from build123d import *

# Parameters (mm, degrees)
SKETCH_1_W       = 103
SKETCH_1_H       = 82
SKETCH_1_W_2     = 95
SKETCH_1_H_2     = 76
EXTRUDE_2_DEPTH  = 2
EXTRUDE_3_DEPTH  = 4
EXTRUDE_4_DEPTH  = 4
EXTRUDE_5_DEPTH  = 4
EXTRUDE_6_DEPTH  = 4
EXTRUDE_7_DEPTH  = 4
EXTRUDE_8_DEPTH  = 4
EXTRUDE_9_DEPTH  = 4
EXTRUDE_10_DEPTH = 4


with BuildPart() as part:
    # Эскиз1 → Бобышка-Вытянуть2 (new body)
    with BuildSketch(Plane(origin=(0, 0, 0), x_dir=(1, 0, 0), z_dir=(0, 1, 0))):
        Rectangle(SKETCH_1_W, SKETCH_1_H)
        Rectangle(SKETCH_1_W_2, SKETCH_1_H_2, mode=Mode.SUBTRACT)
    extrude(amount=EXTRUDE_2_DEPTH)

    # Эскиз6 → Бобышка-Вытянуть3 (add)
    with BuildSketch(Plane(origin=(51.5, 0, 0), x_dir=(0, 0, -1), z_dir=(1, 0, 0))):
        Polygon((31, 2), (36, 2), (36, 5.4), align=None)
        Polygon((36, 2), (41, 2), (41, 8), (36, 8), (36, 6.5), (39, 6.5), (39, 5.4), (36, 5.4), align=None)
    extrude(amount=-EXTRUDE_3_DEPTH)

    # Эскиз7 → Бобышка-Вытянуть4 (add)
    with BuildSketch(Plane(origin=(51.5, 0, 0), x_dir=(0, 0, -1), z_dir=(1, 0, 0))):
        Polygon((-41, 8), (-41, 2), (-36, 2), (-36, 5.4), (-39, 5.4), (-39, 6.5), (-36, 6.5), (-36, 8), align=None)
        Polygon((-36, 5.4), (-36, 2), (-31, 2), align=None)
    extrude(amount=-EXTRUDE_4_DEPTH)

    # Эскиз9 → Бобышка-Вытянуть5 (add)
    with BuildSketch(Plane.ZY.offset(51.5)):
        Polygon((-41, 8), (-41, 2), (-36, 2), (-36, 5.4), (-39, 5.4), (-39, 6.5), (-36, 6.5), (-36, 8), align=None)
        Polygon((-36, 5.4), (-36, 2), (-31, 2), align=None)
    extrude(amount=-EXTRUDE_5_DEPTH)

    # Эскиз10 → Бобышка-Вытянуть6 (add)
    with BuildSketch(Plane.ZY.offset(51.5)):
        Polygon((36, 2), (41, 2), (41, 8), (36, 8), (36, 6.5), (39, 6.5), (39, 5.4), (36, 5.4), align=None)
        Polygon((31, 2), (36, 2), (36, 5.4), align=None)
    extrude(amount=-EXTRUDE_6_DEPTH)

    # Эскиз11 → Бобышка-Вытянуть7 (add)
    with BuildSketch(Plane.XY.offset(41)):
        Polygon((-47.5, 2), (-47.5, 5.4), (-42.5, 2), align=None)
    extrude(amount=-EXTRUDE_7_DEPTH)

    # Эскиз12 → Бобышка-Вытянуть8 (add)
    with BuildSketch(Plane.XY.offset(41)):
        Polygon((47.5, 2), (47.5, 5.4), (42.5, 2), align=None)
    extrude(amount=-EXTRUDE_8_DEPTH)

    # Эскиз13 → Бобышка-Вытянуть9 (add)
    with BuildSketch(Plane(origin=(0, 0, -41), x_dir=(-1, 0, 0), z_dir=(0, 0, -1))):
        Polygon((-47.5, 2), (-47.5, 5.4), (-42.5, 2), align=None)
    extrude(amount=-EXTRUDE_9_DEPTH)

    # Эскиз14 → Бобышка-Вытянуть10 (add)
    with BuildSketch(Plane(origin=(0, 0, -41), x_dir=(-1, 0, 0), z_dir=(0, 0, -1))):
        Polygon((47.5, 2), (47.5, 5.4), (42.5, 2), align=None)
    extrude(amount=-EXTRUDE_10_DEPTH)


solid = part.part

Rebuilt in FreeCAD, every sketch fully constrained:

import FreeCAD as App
import Part
import Sketcher
Q = App.Units.Quantity

doc = App.newDocument("Part")
body = doc.addObject("PartDesign::Body", "Body")

# Sketch on XZ plane
sketch1 = doc.addObject("Sketcher::SketchObject", "Sketch")
body.addObject(sketch1)
sketch1.AttachmentSupport = (doc.XZ_Plane, [""])
sketch1.MapMode = "FlatFace"
sketch1.addGeometry(Part.LineSegment(App.Vector(-52, -41, 0), App.Vector(-52, 41, 0)), False)
sketch1.addGeometry(Part.LineSegment(App.Vector(-52, 41, 0), App.Vector(52, 41, 0)), False)
sketch1.addGeometry(Part.LineSegment(App.Vector(52, 41, 0), App.Vector(52, -41, 0)), False)
sketch1.addGeometry(Part.LineSegment(App.Vector(52, -41, 0), App.Vector(-52, -41, 0)), False)
sketch1.addGeometry(Part.LineSegment(App.Vector(48, 38, 0), App.Vector(-48, 38, 0)), False)
sketch1.addGeometry(Part.LineSegment(App.Vector(-48, 38, 0), App.Vector(-48, -38, 0)), False)
sketch1.addGeometry(Part.LineSegment(App.Vector(-48, -38, 0), App.Vector(48, -38, 0)), False)
sketch1.addGeometry(Part.LineSegment(App.Vector(48, -38, 0), App.Vector(48, 38, 0)), False)
sketch1.addConstraint(Sketcher.Constraint("Coincident", 0, 2, 1, 1))
sketch1.addConstraint(Sketcher.Constraint("Coincident", 1, 2, 2, 1))
sketch1.addConstraint(Sketcher.Constraint("Coincident", 2, 2, 3, 1))
sketch1.addConstraint(Sketcher.Constraint("Coincident", 3, 2, 0, 1))
sketch1.addConstraint(Sketcher.Constraint("Coincident", 4, 2, 5, 1))
sketch1.addConstraint(Sketcher.Constraint("Coincident", 5, 2, 6, 1))
sketch1.addConstraint(Sketcher.Constraint("Coincident", 6, 2, 7, 1))
sketch1.addConstraint(Sketcher.Constraint("Coincident", 7, 2, 4, 1))
sketch1.addConstraint(Sketcher.Constraint("Vertical", 0))
sketch1.addConstraint(Sketcher.Constraint("Horizontal", 1))
sketch1.addConstraint(Sketcher.Constraint("Vertical", 2))
sketch1.addConstraint(Sketcher.Constraint("Horizontal", 3))
sketch1.addConstraint(Sketcher.Constraint("Horizontal", 4))
sketch1.addConstraint(Sketcher.Constraint("Vertical", 5))
sketch1.addConstraint(Sketcher.Constraint("Horizontal", 6))
sketch1.addConstraint(Sketcher.Constraint("Vertical", 7))
sketch1.addConstraint(Sketcher.Constraint("Symmetric", 0, 2, 2, 2, -1, 1))
sketch1.addConstraint(Sketcher.Constraint("Symmetric", 4, 2, 6, 2, -1, 1))
sketch1.addConstraint(Sketcher.Constraint("DistanceX", 1, 1, 1, 2, Q("103 mm")))
sketch1.addConstraint(Sketcher.Constraint("DistanceX", 4, 2, 4, 1, Q("95 mm")))
sketch1.addConstraint(Sketcher.Constraint("DistanceY", 0, 1, 0, 2, Q("82 mm")))
sketch1.addConstraint(Sketcher.Constraint("DistanceY", 5, 2, 5, 1, Q("76 mm")))
pad1 = doc.addObject("PartDesign::Pad", "Pad")
body.addObject(pad1)
pad1.Profile = sketch1
pad1.Length = 2
pad1.Reversed = True

# Sketch on YZ plane
sketch2 = doc.addObject("Sketcher::SketchObject", "Sketch001")
body.addObject(sketch2)
sketch2.AttachmentSupport = (doc.YZ_Plane, [""])
sketch2.MapMode = "FlatFace"
sketch2.AttachmentOffset = App.Placement(App.Vector(0, 0, 51.5), App.Rotation())
sketch2.addGeometry(Part.LineSegment(App.Vector(2, -31, 0), App.Vector(2, -41, 0)), False)
sketch2.addGeometry(Part.LineSegment(App.Vector(2, -41, 0), App.Vector(8, -41, 0)), False)
sketch2.addGeometry(Part.LineSegment(App.Vector(8, -41, 0), App.Vector(8, -36, 0)), False)
sketch2.addGeometry(Part.LineSegment(App.Vector(8, -36, 0), App.Vector(6.5, -36, 0)), False)
sketch2.addGeometry(Part.LineSegment(App.Vector(6.5, -36, 0), App.Vector(6.5, -39, 0)), False)
sketch2.addGeometry(Part.LineSegment(App.Vector(6.5, -39, 0), App.Vector(5.4, -39, 0)), False)
sketch2.addGeometry(Part.LineSegment(App.Vector(5.4, -39, 0), App.Vector(5.4, -36, 0)), False)
sketch2.addGeometry(Part.LineSegment(App.Vector(5.4, -36, 0), App.Vector(2, -31, 0)), False)
sketch2.addConstraint(Sketcher.Constraint("Coincident", 0, 2, 1, 1))
sketch2.addConstraint(Sketcher.Constraint("Coincident", 1, 2, 2, 1))
sketch2.addConstraint(Sketcher.Constraint("Coincident", 2, 2, 3, 1))
sketch2.addConstraint(Sketcher.Constraint("Coincident", 3, 2, 4, 1))
sketch2.addConstraint(Sketcher.Constraint("Coincident", 4, 2, 5, 1))
sketch2.addConstraint(Sketcher.Constraint("Coincident", 5, 2, 6, 1))
sketch2.addConstraint(Sketcher.Constraint("Coincident", 6, 2, 7, 1))
sketch2.addConstraint(Sketcher.Constraint("Coincident", 7, 2, 0, 1))
sketch2.addConstraint(Sketcher.Constraint("Vertical", 0))
sketch2.addConstraint(Sketcher.Constraint("Horizontal", 1))
sketch2.addConstraint(Sketcher.Constraint("Vertical", 2))
sketch2.addConstraint(Sketcher.Constraint("Horizontal", 3))
sketch2.addConstraint(Sketcher.Constraint("Vertical", 4))
sketch2.addConstraint(Sketcher.Constraint("Horizontal", 5))
sketch2.addConstraint(Sketcher.Constraint("Vertical", 6))
sketch2.addConstraint(Sketcher.Constraint("Horizontal", 3, 2, 6, 2))
sketch2.addConstraint(Sketcher.Constraint("DistanceX", 1, 1, 1, 2, Q("6 mm")))
sketch2.addConstraint(Sketcher.Constraint("DistanceY", 0, 2, 0, 1, Q("10 mm")))
sketch2.addConstraint(Sketcher.Constraint("DistanceY", 2, 1, 2, 2, Q("5 mm")))
sketch2.addConstraint(Sketcher.Constraint("DistanceY", 4, 2, 4, 1, Q("3 mm")))
sketch2.addConstraint(Sketcher.Constraint("DistanceX", 3, 2, 3, 1, Q("1.5 mm")))
sketch2.addConstraint(Sketcher.Constraint("DistanceX", 5, 2, 5, 1, Q("1.1 mm")))
sketch2.addConstraint(Sketcher.Constraint("DistanceX", -1, 1, 0, 2, Q("2 mm")))
sketch2.addConstraint(Sketcher.Constraint("DistanceY", 0, 2, -1, 1, Q("41 mm")))
pad2 = doc.addObject("PartDesign::Pad", "Pad001")
body.addObject(pad2)
pad2.Profile = sketch2
pad2.Length = 4
pad2.Reversed = True

# Sketch on YZ plane
sketch3 = doc.addObject("Sketcher::SketchObject", "Sketch002")
body.addObject(sketch3)
sketch3.AttachmentSupport = (doc.YZ_Plane, [""])
sketch3.MapMode = "FlatFace"
sketch3.AttachmentOffset = App.Placement(App.Vector(0, 0, 51.5), App.Rotation())
sketch3.addGeometry(Part.LineSegment(App.Vector(8, 41, 0), App.Vector(2, 41, 0)), False)
sketch3.addGeometry(Part.LineSegment(App.Vector(2, 41, 0), App.Vector(2, 31, 0)), False)
sketch3.addGeometry(Part.LineSegment(App.Vector(2, 31, 0), App.Vector(5.4, 36, 0)), False)
sketch3.addGeometry(Part.LineSegment(App.Vector(5.4, 36, 0), App.Vector(5.4, 39, 0)), False)
sketch3.addGeometry(Part.LineSegment(App.Vector(5.4, 39, 0), App.Vector(6.5, 39, 0)), False)
sketch3.addGeometry(Part.LineSegment(App.Vector(6.5, 39, 0), App.Vector(6.5, 36, 0)), False)
sketch3.addGeometry(Part.LineSegment(App.Vector(6.5, 36, 0), App.Vector(8, 36, 0)), False)
sketch3.addGeometry(Part.LineSegment(App.Vector(8, 36, 0), App.Vector(8, 41, 0)), False)
sketch3.addConstraint(Sketcher.Constraint("Coincident", 0, 2, 1, 1))
sketch3.addConstraint(Sketcher.Constraint("Coincident", 1, 2, 2, 1))
sketch3.addConstraint(Sketcher.Constraint("Coincident", 2, 2, 3, 1))
sketch3.addConstraint(Sketcher.Constraint("Coincident", 3, 2, 4, 1))
sketch3.addConstraint(Sketcher.Constraint("Coincident", 4, 2, 5, 1))
sketch3.addConstraint(Sketcher.Constraint("Coincident", 5, 2, 6, 1))
sketch3.addConstraint(Sketcher.Constraint("Coincident", 6, 2, 7, 1))
sketch3.addConstraint(Sketcher.Constraint("Coincident", 7, 2, 0, 1))
sketch3.addConstraint(Sketcher.Constraint("Horizontal", 0))
sketch3.addConstraint(Sketcher.Constraint("Vertical", 1))
sketch3.addConstraint(Sketcher.Constraint("Vertical", 3))
sketch3.addConstraint(Sketcher.Constraint("Horizontal", 4))
sketch3.addConstraint(Sketcher.Constraint("Vertical", 5))
sketch3.addConstraint(Sketcher.Constraint("Horizontal", 6))
sketch3.addConstraint(Sketcher.Constraint("Vertical", 7))
sketch3.addConstraint(Sketcher.Constraint("Horizontal", 2, 2, 5, 2))
sketch3.addConstraint(Sketcher.Constraint("DistanceX", 0, 2, 0, 1, Q("6 mm")))
sketch3.addConstraint(Sketcher.Constraint("DistanceY", 1, 2, 1, 1, Q("10 mm")))
sketch3.addConstraint(Sketcher.Constraint("DistanceY", 3, 1, 3, 2, Q("3 mm")))
sketch3.addConstraint(Sketcher.Constraint("DistanceY", 7, 1, 7, 2, Q("5 mm")))
sketch3.addConstraint(Sketcher.Constraint("DistanceX", 4, 1, 4, 2, Q("1.1 mm")))
sketch3.addConstraint(Sketcher.Constraint("DistanceX", 6, 1, 6, 2, Q("1.5 mm")))
sketch3.addConstraint(Sketcher.Constraint("DistanceX", -1, 1, 0, 2, Q("2 mm")))
sketch3.addConstraint(Sketcher.Constraint("DistanceY", -1, 1, 0, 2, Q("41 mm")))
pad3 = doc.addObject("PartDesign::Pad", "Pad002")
body.addObject(pad3)
pad3.Profile = sketch3
pad3.Length = 4
pad3.Reversed = True

# Sketch on YZ plane
sketch4 = doc.addObject("Sketcher::SketchObject", "Sketch003")
body.addObject(sketch4)
sketch4.AttachmentSupport = (doc.YZ_Plane, [""])
sketch4.MapMode = "FlatFace"
sketch4.AttachmentOffset = App.Placement(App.Vector(0, 0, -51.5), App.Rotation())
sketch4.addGeometry(Part.LineSegment(App.Vector(8, -41, 0), App.Vector(2, -41, 0)), False)
sketch4.addGeometry(Part.LineSegment(App.Vector(2, -41, 0), App.Vector(2, -31, 0)), False)
sketch4.addGeometry(Part.LineSegment(App.Vector(2, -31, 0), App.Vector(5.4, -36, 0)), False)
sketch4.addGeometry(Part.LineSegment(App.Vector(5.4, -36, 0), App.Vector(5.4, -39, 0)), False)
sketch4.addGeometry(Part.LineSegment(App.Vector(5.4, -39, 0), App.Vector(6.5, -39, 0)), False)
sketch4.addGeometry(Part.LineSegment(App.Vector(6.5, -39, 0), App.Vector(6.5, -36, 0)), False)
sketch4.addGeometry(Part.LineSegment(App.Vector(6.5, -36, 0), App.Vector(8, -36, 0)), False)
sketch4.addGeometry(Part.LineSegment(App.Vector(8, -36, 0), App.Vector(8, -41, 0)), False)
sketch4.addConstraint(Sketcher.Constraint("Coincident", 0, 2, 1, 1))
sketch4.addConstraint(Sketcher.Constraint("Coincident", 1, 2, 2, 1))
sketch4.addConstraint(Sketcher.Constraint("Coincident", 2, 2, 3, 1))
sketch4.addConstraint(Sketcher.Constraint("Coincident", 3, 2, 4, 1))
sketch4.addConstraint(Sketcher.Constraint("Coincident", 4, 2, 5, 1))
sketch4.addConstraint(Sketcher.Constraint("Coincident", 5, 2, 6, 1))
sketch4.addConstraint(Sketcher.Constraint("Coincident", 6, 2, 7, 1))
sketch4.addConstraint(Sketcher.Constraint("Coincident", 7, 2, 0, 1))
sketch4.addConstraint(Sketcher.Constraint("Horizontal", 0))
sketch4.addConstraint(Sketcher.Constraint("Vertical", 1))
sketch4.addConstraint(Sketcher.Constraint("Vertical", 3))
sketch4.addConstraint(Sketcher.Constraint("Horizontal", 4))
sketch4.addConstraint(Sketcher.Constraint("Vertical", 5))
sketch4.addConstraint(Sketcher.Constraint("Horizontal", 6))
sketch4.addConstraint(Sketcher.Constraint("Vertical", 7))
sketch4.addConstraint(Sketcher.Constraint("Horizontal", 2, 2, 5, 2))
sketch4.addConstraint(Sketcher.Constraint("DistanceX", 0, 2, 0, 1, Q("6 mm")))
sketch4.addConstraint(Sketcher.Constraint("DistanceY", 1, 1, 1, 2, Q("10 mm")))
sketch4.addConstraint(Sketcher.Constraint("DistanceY", 3, 2, 3, 1, Q("3 mm")))
sketch4.addConstraint(Sketcher.Constraint("DistanceY", 7, 2, 7, 1, Q("5 mm")))
sketch4.addConstraint(Sketcher.Constraint("DistanceX", 4, 1, 4, 2, Q("1.1 mm")))
sketch4.addConstraint(Sketcher.Constraint("DistanceX", 6, 1, 6, 2, Q("1.5 mm")))
sketch4.addConstraint(Sketcher.Constraint("DistanceX", -1, 1, 0, 2, Q("2 mm")))
sketch4.addConstraint(Sketcher.Constraint("DistanceY", 0, 2, -1, 1, Q("41 mm")))
pad4 = doc.addObject("PartDesign::Pad", "Pad003")
body.addObject(pad4)
pad4.Profile = sketch4
pad4.Length = 4

# Sketch on YZ plane
sketch5 = doc.addObject("Sketcher::SketchObject", "Sketch004")
body.addObject(sketch5)
sketch5.AttachmentSupport = (doc.YZ_Plane, [""])
sketch5.MapMode = "FlatFace"
sketch5.AttachmentOffset = App.Placement(App.Vector(0, 0, -51.5), App.Rotation())
sketch5.addGeometry(Part.LineSegment(App.Vector(2, 41, 0), App.Vector(8, 41, 0)), False)
sketch5.addGeometry(Part.LineSegment(App.Vector(8, 41, 0), App.Vector(8, 36, 0)), False)
sketch5.addGeometry(Part.LineSegment(App.Vector(8, 36, 0), App.Vector(6.5, 36, 0)), False)
sketch5.addGeometry(Part.LineSegment(App.Vector(6.5, 36, 0), App.Vector(6.5, 39, 0)), False)
sketch5.addGeometry(Part.LineSegment(App.Vector(6.5, 39, 0), App.Vector(5.4, 39, 0)), False)
sketch5.addGeometry(Part.LineSegment(App.Vector(5.4, 39, 0), App.Vector(5.4, 36, 0)), False)
sketch5.addGeometry(Part.LineSegment(App.Vector(5.4, 36, 0), App.Vector(2, 31, 0)), False)
sketch5.addGeometry(Part.LineSegment(App.Vector(2, 31, 0), App.Vector(2, 41, 0)), False)
sketch5.addConstraint(Sketcher.Constraint("Coincident", 0, 2, 1, 1))
sketch5.addConstraint(Sketcher.Constraint("Coincident", 1, 2, 2, 1))
sketch5.addConstraint(Sketcher.Constraint("Coincident", 2, 2, 3, 1))
sketch5.addConstraint(Sketcher.Constraint("Coincident", 3, 2, 4, 1))
sketch5.addConstraint(Sketcher.Constraint("Coincident", 4, 2, 5, 1))
sketch5.addConstraint(Sketcher.Constraint("Coincident", 5, 2, 6, 1))
sketch5.addConstraint(Sketcher.Constraint("Coincident", 6, 2, 7, 1))
sketch5.addConstraint(Sketcher.Constraint("Coincident", 7, 2, 0, 1))
sketch5.addConstraint(Sketcher.Constraint("Horizontal", 0))
sketch5.addConstraint(Sketcher.Constraint("Vertical", 1))
sketch5.addConstraint(Sketcher.Constraint("Horizontal", 2))
sketch5.addConstraint(Sketcher.Constraint("Vertical", 3))
sketch5.addConstraint(Sketcher.Constraint("Horizontal", 4))
sketch5.addConstraint(Sketcher.Constraint("Vertical", 5))
sketch5.addConstraint(Sketcher.Constraint("Vertical", 7))
sketch5.addConstraint(Sketcher.Constraint("Horizontal", 2, 2, 5, 2))
sketch5.addConstraint(Sketcher.Constraint("DistanceX", 0, 1, 0, 2, Q("6 mm")))
sketch5.addConstraint(Sketcher.Constraint("DistanceY", 1, 2, 1, 1, Q("5 mm")))
sketch5.addConstraint(Sketcher.Constraint("DistanceY", 3, 1, 3, 2, Q("3 mm")))
sketch5.addConstraint(Sketcher.Constraint("DistanceY", 7, 1, 7, 2, Q("10 mm")))
sketch5.addConstraint(Sketcher.Constraint("DistanceX", 2, 2, 2, 1, Q("1.5 mm")))
sketch5.addConstraint(Sketcher.Constraint("DistanceX", 4, 2, 4, 1, Q("1.1 mm")))
sketch5.addConstraint(Sketcher.Constraint("DistanceX", -1, 1, 0, 2, Q("8 mm")))
sketch5.addConstraint(Sketcher.Constraint("DistanceY", -1, 1, 0, 2, Q("41 mm")))
pad5 = doc.addObject("PartDesign::Pad", "Pad004")
body.addObject(pad5)
pad5.Profile = sketch5
pad5.Length = 4

# Sketch on XY plane
sketch6 = doc.addObject("Sketcher::SketchObject", "Sketch005")
body.addObject(sketch6)
sketch6.AttachmentSupport = (doc.XY_Plane, [""])
sketch6.MapMode = "FlatFace"
sketch6.AttachmentOffset = App.Placement(App.Vector(0, 0, 41), App.Rotation())
sketch6.addGeometry(Part.LineSegment(App.Vector(-47.5, 5.4, 0), App.Vector(-47.5, 2, 0)), False)
sketch6.addGeometry(Part.LineSegment(App.Vector(-47.5, 2, 0), App.Vector(-42.5, 2, 0)), False)
sketch6.addGeometry(Part.LineSegment(App.Vector(-42.5, 2, 0), App.Vector(-47.5, 5.4, 0)), False)
sketch6.addConstraint(Sketcher.Constraint("Coincident", 0, 2, 1, 1))
sketch6.addConstraint(Sketcher.Constraint("Coincident", 1, 2, 2, 1))
sketch6.addConstraint(Sketcher.Constraint("Coincident", 2, 2, 0, 1))
sketch6.addConstraint(Sketcher.Constraint("Vertical", 0))
sketch6.addConstraint(Sketcher.Constraint("Horizontal", 1))
sketch6.addConstraint(Sketcher.Constraint("DistanceX", 1, 1, 1, 2, Q("5 mm")))
sketch6.addConstraint(Sketcher.Constraint("DistanceY", 0, 2, 0, 1, Q("3.4 mm")))
sketch6.addConstraint(Sketcher.Constraint("DistanceY", -1, 1, 0, 2, Q("2 mm")))
sketch6.addConstraint(Sketcher.Constraint("DistanceX", 0, 2, -1, 1, Q("47.5 mm")))
pad6 = doc.addObject("PartDesign::Pad", "Pad005")
body.addObject(pad6)
pad6.Profile = sketch6
pad6.Length = 4
pad6.Reversed = True

# Sketch on XY plane
sketch7 = doc.addObject("Sketcher::SketchObject", "Sketch006")
body.addObject(sketch7)
sketch7.AttachmentSupport = (doc.XY_Plane, [""])
sketch7.MapMode = "FlatFace"
sketch7.AttachmentOffset = App.Placement(App.Vector(0, 0, 41), App.Rotation())
sketch7.addGeometry(Part.LineSegment(App.Vector(47.5, 2, 0), App.Vector(47.5, 5.4, 0)), False)
sketch7.addGeometry(Part.LineSegment(App.Vector(47.5, 5.4, 0), App.Vector(42.5, 2, 0)), False)
sketch7.addGeometry(Part.LineSegment(App.Vector(42.5, 2, 0), App.Vector(47.5, 2, 0)), False)
sketch7.addConstraint(Sketcher.Constraint("Coincident", 0, 2, 1, 1))
sketch7.addConstraint(Sketcher.Constraint("Coincident", 1, 2, 2, 1))
sketch7.addConstraint(Sketcher.Constraint("Coincident", 2, 2, 0, 1))
sketch7.addConstraint(Sketcher.Constraint("Vertical", 0))
sketch7.addConstraint(Sketcher.Constraint("Horizontal", 2))
sketch7.addConstraint(Sketcher.Constraint("DistanceX", 2, 1, 2, 2, Q("5 mm")))
sketch7.addConstraint(Sketcher.Constraint("DistanceY", 0, 1, 0, 2, Q("3.4 mm")))
sketch7.addConstraint(Sketcher.Constraint("DistanceY", -1, 1, 1, 2, Q("2 mm")))
sketch7.addConstraint(Sketcher.Constraint("DistanceX", -1, 1, 0, 2, Q("47.5 mm")))
pad7 = doc.addObject("PartDesign::Pad", "Pad006")
body.addObject(pad7)
pad7.Profile = sketch7
pad7.Length = 4
pad7.Reversed = True

# Sketch on XY plane
sketch8 = doc.addObject("Sketcher::SketchObject", "Sketch007")
body.addObject(sketch8)
sketch8.AttachmentSupport = (doc.XY_Plane, [""])
sketch8.MapMode = "FlatFace"
sketch8.AttachmentOffset = App.Placement(App.Vector(0, 0, -41), App.Rotation())
sketch8.addGeometry(Part.LineSegment(App.Vector(47.5, 5.4, 0), App.Vector(47.5, 2, 0)), False)
sketch8.addGeometry(Part.LineSegment(App.Vector(47.5, 2, 0), App.Vector(42.5, 2, 0)), False)
sketch8.addGeometry(Part.LineSegment(App.Vector(42.5, 2, 0), App.Vector(47.5, 5.4, 0)), False)
sketch8.addConstraint(Sketcher.Constraint("Coincident", 0, 2, 1, 1))
sketch8.addConstraint(Sketcher.Constraint("Coincident", 1, 2, 2, 1))
sketch8.addConstraint(Sketcher.Constraint("Coincident", 2, 2, 0, 1))
sketch8.addConstraint(Sketcher.Constraint("Vertical", 0))
sketch8.addConstraint(Sketcher.Constraint("Horizontal", 1))
sketch8.addConstraint(Sketcher.Constraint("DistanceX", 1, 2, 1, 1, Q("5 mm")))
sketch8.addConstraint(Sketcher.Constraint("DistanceY", 0, 2, 0, 1, Q("3.4 mm")))
sketch8.addConstraint(Sketcher.Constraint("DistanceY", -1, 1, 0, 2, Q("2 mm")))
sketch8.addConstraint(Sketcher.Constraint("DistanceX", -1, 1, 0, 2, Q("47.5 mm")))
pad8 = doc.addObject("PartDesign::Pad", "Pad007")
body.addObject(pad8)
pad8.Profile = sketch8
pad8.Length = 4

# Sketch on XY plane
sketch9 = doc.addObject("Sketcher::SketchObject", "Sketch008")
body.addObject(sketch9)
sketch9.AttachmentSupport = (doc.XY_Plane, [""])
sketch9.MapMode = "FlatFace"
sketch9.AttachmentOffset = App.Placement(App.Vector(0, 0, -41), App.Rotation())
sketch9.addGeometry(Part.LineSegment(App.Vector(-47.5, 2, 0), App.Vector(-47.5, 5.4, 0)), False)
sketch9.addGeometry(Part.LineSegment(App.Vector(-47.5, 5.4, 0), App.Vector(-42.5, 2, 0)), False)
sketch9.addGeometry(Part.LineSegment(App.Vector(-42.5, 2, 0), App.Vector(-47.5, 2, 0)), False)
sketch9.addConstraint(Sketcher.Constraint("Coincident", 0, 2, 1, 1))
sketch9.addConstraint(Sketcher.Constraint("Coincident", 1, 2, 2, 1))
sketch9.addConstraint(Sketcher.Constraint("Coincident", 2, 2, 0, 1))
sketch9.addConstraint(Sketcher.Constraint("Vertical", 0))
sketch9.addConstraint(Sketcher.Constraint("Horizontal", 2))
sketch9.addConstraint(Sketcher.Constraint("DistanceX", 2, 2, 2, 1, Q("5 mm")))
sketch9.addConstraint(Sketcher.Constraint("DistanceY", 0, 1, 0, 2, Q("3.4 mm")))
sketch9.addConstraint(Sketcher.Constraint("DistanceY", -1, 1, 1, 2, Q("2 mm")))
sketch9.addConstraint(Sketcher.Constraint("DistanceX", 0, 2, -1, 1, Q("47.5 mm")))
pad9 = doc.addObject("PartDesign::Pad", "Pad008")
body.addObject(pad9)
pad9.Profile = sketch9
pad9.Length = 4

doc.recompute()
